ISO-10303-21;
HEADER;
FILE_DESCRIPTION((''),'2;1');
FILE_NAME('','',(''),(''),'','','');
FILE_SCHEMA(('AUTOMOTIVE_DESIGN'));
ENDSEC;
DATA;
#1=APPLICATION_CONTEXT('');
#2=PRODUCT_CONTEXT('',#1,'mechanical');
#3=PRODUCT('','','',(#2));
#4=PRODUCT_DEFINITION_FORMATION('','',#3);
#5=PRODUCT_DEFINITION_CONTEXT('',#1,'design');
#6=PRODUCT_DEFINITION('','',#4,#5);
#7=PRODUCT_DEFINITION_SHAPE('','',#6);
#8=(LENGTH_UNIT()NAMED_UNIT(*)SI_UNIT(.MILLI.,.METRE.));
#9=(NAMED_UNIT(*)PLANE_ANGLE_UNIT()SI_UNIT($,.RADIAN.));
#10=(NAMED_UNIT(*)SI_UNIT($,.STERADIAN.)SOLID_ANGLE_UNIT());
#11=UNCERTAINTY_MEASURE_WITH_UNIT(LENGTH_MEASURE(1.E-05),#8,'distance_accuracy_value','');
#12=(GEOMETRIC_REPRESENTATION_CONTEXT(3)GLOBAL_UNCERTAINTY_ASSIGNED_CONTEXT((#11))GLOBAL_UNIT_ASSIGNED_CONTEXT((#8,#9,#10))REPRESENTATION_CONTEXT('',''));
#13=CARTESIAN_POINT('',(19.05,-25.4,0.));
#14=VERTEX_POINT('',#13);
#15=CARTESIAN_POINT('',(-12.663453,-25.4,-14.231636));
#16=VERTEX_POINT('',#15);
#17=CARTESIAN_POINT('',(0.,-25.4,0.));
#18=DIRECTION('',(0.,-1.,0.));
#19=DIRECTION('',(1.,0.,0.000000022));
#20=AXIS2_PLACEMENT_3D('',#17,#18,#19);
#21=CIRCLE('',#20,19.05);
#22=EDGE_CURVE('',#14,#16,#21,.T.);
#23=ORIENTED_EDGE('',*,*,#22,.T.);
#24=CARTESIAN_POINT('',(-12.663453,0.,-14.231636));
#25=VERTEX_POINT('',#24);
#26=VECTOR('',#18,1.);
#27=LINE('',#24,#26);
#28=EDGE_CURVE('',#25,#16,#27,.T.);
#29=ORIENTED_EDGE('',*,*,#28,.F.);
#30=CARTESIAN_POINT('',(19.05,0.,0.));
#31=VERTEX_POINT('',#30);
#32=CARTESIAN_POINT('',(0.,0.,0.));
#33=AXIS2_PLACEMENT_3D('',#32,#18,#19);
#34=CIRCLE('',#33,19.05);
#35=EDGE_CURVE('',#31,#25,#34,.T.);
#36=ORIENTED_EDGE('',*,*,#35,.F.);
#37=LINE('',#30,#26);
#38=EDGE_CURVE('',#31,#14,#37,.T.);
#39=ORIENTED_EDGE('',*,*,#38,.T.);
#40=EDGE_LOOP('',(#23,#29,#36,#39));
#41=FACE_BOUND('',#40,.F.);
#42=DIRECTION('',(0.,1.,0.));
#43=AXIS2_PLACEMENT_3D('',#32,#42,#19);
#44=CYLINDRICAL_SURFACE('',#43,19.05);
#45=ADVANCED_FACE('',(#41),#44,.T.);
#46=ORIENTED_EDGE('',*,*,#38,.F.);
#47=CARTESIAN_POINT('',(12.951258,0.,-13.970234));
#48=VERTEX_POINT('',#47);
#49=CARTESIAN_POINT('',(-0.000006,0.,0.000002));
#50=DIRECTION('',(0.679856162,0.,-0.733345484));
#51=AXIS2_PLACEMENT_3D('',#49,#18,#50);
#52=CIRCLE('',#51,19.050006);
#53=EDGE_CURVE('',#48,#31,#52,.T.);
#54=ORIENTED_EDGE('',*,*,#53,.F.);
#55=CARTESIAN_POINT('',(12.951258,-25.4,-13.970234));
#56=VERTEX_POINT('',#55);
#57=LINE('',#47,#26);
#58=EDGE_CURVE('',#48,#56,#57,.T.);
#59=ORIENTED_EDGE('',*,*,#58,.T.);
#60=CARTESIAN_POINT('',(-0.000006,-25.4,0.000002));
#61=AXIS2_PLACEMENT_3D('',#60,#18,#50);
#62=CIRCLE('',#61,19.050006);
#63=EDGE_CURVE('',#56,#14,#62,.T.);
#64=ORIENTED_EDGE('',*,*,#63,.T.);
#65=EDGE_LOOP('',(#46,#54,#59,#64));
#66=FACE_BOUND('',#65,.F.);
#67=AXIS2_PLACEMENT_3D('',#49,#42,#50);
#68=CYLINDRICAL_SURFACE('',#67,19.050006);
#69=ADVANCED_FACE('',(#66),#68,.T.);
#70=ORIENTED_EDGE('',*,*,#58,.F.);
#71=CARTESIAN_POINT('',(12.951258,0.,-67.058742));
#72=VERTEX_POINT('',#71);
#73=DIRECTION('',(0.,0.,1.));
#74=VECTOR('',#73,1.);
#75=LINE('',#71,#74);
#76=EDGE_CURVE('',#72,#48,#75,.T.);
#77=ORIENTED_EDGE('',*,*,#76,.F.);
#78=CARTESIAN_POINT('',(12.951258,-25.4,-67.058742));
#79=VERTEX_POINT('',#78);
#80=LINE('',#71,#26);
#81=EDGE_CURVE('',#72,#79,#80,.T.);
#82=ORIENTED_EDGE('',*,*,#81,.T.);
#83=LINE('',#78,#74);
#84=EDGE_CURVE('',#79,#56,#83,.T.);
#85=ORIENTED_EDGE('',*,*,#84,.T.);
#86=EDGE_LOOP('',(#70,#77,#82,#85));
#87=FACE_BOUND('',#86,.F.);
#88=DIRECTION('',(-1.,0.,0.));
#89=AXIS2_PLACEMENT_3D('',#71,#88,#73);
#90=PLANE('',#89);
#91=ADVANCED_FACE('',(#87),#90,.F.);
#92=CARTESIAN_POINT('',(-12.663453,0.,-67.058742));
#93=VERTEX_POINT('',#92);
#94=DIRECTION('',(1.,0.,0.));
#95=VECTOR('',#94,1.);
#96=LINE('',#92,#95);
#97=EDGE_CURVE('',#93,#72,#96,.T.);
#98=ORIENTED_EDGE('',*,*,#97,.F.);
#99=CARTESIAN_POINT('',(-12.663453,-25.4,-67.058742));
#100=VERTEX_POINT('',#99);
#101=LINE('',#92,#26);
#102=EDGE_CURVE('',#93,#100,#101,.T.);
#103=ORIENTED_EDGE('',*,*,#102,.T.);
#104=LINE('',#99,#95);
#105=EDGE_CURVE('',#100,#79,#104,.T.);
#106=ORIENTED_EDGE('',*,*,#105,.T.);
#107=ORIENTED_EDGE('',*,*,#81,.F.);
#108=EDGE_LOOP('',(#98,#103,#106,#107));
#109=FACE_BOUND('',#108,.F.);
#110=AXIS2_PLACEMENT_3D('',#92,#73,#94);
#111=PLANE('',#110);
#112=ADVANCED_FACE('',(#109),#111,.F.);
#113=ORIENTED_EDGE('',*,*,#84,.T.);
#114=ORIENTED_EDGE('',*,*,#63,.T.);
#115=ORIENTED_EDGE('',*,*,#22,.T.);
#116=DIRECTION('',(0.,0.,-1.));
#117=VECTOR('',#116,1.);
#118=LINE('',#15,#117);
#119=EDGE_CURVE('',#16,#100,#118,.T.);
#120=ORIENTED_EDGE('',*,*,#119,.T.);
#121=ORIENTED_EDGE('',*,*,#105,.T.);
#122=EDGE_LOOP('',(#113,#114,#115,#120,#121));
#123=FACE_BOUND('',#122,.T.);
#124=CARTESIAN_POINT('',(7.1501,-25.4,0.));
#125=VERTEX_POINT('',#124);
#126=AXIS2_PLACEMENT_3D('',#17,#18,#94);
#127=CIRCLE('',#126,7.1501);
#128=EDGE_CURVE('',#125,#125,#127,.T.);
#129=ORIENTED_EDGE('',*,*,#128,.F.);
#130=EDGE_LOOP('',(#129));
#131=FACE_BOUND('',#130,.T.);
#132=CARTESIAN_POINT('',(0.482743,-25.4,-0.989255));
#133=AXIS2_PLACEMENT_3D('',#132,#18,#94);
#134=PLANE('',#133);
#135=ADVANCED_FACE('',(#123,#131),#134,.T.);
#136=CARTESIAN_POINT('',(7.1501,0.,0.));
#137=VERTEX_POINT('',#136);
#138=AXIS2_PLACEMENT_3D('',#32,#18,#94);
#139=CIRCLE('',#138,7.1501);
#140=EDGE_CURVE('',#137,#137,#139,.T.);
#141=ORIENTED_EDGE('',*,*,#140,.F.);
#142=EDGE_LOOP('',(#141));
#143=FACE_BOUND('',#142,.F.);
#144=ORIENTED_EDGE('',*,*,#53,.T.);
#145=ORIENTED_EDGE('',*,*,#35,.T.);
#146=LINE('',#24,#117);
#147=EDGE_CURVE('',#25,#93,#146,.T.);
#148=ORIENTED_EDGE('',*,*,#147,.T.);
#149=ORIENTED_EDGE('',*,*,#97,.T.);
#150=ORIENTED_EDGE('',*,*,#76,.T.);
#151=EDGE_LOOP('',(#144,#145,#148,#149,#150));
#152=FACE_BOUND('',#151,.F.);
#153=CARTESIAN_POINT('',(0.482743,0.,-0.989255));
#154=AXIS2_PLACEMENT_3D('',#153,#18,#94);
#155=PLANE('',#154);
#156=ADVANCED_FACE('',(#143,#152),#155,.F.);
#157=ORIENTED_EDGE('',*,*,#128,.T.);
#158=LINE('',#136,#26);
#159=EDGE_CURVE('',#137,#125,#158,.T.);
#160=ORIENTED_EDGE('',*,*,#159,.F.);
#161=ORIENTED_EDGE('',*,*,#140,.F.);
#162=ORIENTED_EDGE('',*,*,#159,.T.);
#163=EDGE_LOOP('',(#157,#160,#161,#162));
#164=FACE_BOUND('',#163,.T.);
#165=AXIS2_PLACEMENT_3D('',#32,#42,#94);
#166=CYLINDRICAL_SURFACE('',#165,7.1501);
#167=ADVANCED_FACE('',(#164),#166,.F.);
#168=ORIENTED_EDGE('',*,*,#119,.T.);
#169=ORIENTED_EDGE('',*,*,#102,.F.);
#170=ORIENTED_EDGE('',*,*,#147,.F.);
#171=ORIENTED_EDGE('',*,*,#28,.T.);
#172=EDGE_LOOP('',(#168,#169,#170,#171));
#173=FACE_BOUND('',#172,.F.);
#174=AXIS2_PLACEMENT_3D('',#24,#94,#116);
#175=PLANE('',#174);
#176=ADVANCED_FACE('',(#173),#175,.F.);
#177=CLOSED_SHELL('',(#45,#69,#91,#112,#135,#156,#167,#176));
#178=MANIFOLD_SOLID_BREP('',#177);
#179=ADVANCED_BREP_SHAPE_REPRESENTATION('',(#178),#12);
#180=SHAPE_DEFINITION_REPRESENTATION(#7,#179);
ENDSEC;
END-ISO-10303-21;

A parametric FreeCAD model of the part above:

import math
import FreeCAD as App
import Part
import Sketcher
from FreeCAD import Vector
Q = App.Units.Quantity

doc = App.newDocument("Part")
body = doc.addObject("PartDesign::Body", "Body")

# Sketch on XZ plane
sketch1 = body.newObject("Sketcher::SketchObject", "Sketch")
sketch1.AttachmentSupport = (doc.getObject("XZ_Plane"), [""])
sketch1.MapMode = "FlatFace"
sketch1.addGeometry([
    Part.ArcOfCircle(Part.Circle(Vector(0, 0, 0), Vector(0, 0, 1), 19), math.radians(-47), math.radians(0)),  # 0
    Part.ArcOfCircle(Part.Circle(Vector(0, 0, 0), Vector(0, 0, 1), 19), math.radians(0), math.radians(228)),  # 1
    Part.LineSegment(Vector(-13, -14, 0), Vector(-13, -67, 0)),  # 2
    Part.LineSegment(Vector(-13, -67, 0), Vector(13, -67, 0)),  # 3
    Part.LineSegment(Vector(13, -67, 0), Vector(13, -14, 0)),  # 4
    Part.Circle(Vector(0, 0, 0), Vector(0, 0, 1), 7),  # 5
], False)
sketch1.addConstraint([
    Sketcher.Constraint("Tangent", 0, 2, 1, 1),
    Sketcher.Constraint("Coincident", 1, 2, 2, 1),
    Sketcher.Constraint("Coincident", 2, 2, 3, 1),
    Sketcher.Constraint("Coincident", 3, 2, 4, 1),
    Sketcher.Constraint("Coincident", 4, 2, 0, 1),
    Sketcher.Constraint("Vertical", 2),
    Sketcher.Constraint("Horizontal", 3),
    Sketcher.Constraint("Vertical", 4),
    Sketcher.Constraint("Coincident", 0, 3, -1, 1),
    Sketcher.Constraint("Coincident", 5, 3, -1, 1),
    Sketcher.Constraint("PointOnObject", 0, 2, -1),
    Sketcher.Constraint("Radius", 1, Q("0.75 in")),
    Sketcher.Constraint("Diameter", 5, Q("0.563 in")),
    Sketcher.Constraint("DistanceX", -1, 1, 0, 2, Q("0.75 in")),
    Sketcher.Constraint("DistanceX", 3, 1, 3, 2, Q("25.614711 mm")),
    Sketcher.Constraint("DistanceY", 2, 2, 2, 1, Q("52.827106 mm")),
    Sketcher.Constraint("DistanceY", 4, 1, 4, 2, Q("53.088508 mm")),
])
pad1 = body.newObject("PartDesign::Pad", "Pad")
pad1.Profile = sketch1
pad1.Length = Q("1 in")

doc.recompute()
